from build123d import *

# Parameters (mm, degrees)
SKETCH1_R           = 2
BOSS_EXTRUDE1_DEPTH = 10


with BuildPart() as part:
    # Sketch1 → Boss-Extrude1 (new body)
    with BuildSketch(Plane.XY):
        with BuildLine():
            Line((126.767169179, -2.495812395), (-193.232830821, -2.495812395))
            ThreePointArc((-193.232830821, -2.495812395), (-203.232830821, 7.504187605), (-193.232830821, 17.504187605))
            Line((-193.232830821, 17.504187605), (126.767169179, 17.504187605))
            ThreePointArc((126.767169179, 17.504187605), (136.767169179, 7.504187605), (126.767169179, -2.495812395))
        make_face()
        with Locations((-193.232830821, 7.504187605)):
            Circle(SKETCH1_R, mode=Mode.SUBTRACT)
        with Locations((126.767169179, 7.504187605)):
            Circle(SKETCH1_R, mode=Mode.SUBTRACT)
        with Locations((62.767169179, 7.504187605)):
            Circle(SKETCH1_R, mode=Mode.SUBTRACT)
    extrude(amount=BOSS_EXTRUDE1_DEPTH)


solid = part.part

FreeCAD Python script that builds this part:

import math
import FreeCAD as App
import Part
import Sketcher

doc = App.newDocument("Part")
body = doc.addObject("PartDesign::Body", "Body")

sketch1 = body.newObject("Sketcher::SketchObject", "Sketch")
sketch1.AttachmentSupport = (doc.getObject("XY_Plane"), [""])
sketch1.MapMode = "FlatFace"
sketch1.addGeometry([
    Part.LineSegment(App.Vector(-193.2, -2.5, 0), App.Vector(126.8, -2.5, 0)),
    Part.ArcOfCircle(Part.Circle(App.Vector(126.8, 7.5, 0), App.Vector(0, 0, 1), 10), math.radians(-90), math.radians(90)),
    Part.LineSegment(App.Vector(126.8, 17.5, 0), App.Vector(-193.2, 17.5, 0)),
    Part.ArcOfCircle(Part.Circle(App.Vector(-193.2, 7.5, 0), App.Vector(0, 0, 1), 10), math.radians(90), math.radians(270)),
    Part.Circle(App.Vector(126.8, 7.5, 0), App.Vector(0, 0, 1), 2),
    Part.Circle(App.Vector(62.8, 7.5, 0), App.Vector(0, 0, 1), 2),
    Part.Circle(App.Vector(-193.2, 7.5, 0), App.Vector(0, 0, 1), 2),
], False)
sketch1.addConstraint([
    Sketcher.Constraint("Tangent", 0, 2, 1, 1),
    Sketcher.Constraint("Tangent", 1, 2, 2, 1),
    Sketcher.Constraint("Tangent", 2, 2, 3, 1),
    Sketcher.Constraint("Tangent", 3, 2, 0, 1),
    Sketcher.Constraint("Horizontal", 0),
    Sketcher.Constraint("Horizontal", 2),
    Sketcher.Constraint("Coincident", 4, 3, 1, 3),
    Sketcher.Constraint("Coincident", 6, 3, 3, 3),
    Sketcher.Constraint("Equal", 4, 5),
    Sketcher.Constraint("Equal", 5, 6),
    Sketcher.Constraint("Horizontal", 4, 3, 5, 3),
    Sketcher.Constraint("Diameter", 4, 4.0),
    Sketcher.Constraint("Radius", 1, 10.0),
    Sketcher.Constraint("DistanceX", 0, 1, 0, 2, 320.0),
    Sketcher.Constraint("DistanceX", 5, 3, 1, 3, 64.0),
    Sketcher.Constraint("DistanceX", -1, 1, 1, 3, 126.767169),
    Sketcher.Constraint("DistanceY", -1, 1, 1, 3, 7.504188),
])
pad1 = body.newObject("PartDesign::Pad", "Pad")
pad1.Profile = sketch1
pad1.Length = 10

doc.recompute()
